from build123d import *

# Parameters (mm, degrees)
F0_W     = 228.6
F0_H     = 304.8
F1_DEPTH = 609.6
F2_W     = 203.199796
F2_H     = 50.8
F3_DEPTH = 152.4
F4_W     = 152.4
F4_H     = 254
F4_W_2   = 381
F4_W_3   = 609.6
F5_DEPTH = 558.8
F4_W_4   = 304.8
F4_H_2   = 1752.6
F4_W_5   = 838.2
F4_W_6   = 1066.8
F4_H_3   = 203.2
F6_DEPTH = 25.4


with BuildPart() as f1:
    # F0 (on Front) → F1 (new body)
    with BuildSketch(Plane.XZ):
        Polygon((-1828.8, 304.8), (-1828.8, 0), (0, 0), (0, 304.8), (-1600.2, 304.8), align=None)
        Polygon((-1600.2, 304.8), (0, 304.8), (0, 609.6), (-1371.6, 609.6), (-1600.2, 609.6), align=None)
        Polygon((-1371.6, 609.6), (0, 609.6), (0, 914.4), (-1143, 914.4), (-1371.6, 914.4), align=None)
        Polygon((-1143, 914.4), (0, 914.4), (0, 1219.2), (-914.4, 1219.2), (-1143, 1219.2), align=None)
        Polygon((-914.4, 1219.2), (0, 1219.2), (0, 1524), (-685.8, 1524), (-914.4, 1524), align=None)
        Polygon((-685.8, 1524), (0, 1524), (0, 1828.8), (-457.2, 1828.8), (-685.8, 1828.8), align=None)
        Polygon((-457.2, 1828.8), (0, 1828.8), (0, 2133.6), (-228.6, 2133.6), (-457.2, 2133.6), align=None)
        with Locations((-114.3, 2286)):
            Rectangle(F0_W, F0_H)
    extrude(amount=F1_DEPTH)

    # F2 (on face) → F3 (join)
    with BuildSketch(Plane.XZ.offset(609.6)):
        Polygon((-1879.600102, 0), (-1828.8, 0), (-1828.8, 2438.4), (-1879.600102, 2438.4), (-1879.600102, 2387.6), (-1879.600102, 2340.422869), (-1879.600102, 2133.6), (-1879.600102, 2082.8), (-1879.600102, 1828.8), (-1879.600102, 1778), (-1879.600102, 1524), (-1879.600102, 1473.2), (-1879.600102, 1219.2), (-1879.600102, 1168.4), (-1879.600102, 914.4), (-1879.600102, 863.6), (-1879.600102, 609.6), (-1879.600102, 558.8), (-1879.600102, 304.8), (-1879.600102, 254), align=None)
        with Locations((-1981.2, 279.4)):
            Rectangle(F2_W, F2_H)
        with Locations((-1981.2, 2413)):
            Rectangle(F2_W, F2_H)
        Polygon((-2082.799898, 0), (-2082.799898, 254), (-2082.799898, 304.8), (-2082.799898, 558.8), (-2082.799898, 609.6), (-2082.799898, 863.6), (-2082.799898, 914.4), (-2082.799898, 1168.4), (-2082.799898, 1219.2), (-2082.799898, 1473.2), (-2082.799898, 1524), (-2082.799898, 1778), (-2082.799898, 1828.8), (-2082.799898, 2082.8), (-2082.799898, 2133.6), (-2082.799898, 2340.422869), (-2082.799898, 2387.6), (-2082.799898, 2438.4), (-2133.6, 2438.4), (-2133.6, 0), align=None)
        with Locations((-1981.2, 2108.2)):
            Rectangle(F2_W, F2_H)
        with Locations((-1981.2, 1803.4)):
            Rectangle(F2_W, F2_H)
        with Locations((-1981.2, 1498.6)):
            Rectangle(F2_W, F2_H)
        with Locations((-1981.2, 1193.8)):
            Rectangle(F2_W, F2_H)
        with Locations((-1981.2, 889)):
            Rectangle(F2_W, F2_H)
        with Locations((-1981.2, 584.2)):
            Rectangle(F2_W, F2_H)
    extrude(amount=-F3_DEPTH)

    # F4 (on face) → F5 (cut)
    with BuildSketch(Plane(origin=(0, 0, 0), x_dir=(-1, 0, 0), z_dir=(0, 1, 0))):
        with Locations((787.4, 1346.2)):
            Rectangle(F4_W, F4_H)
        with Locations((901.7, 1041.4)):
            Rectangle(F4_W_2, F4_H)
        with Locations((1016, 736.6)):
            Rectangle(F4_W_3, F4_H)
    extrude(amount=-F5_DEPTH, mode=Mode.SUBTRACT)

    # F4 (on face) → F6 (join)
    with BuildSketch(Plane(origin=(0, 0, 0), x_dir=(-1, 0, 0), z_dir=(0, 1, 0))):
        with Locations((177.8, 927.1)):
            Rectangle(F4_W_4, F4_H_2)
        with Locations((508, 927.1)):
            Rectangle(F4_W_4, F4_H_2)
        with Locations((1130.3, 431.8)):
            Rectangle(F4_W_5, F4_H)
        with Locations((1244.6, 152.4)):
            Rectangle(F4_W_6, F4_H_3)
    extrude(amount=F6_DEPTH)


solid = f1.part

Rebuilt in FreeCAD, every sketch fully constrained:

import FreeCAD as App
import Part
import Sketcher

V = App.Vector
Q = App.Units.Quantity


def add_polygon(sketch, points):
    """Adds a closed chain of lines whose ends are joined by coincident constraints."""
    first, n = sketch.GeometryCount, len(points)
    for a, b in zip(points, points[1:] + points[:1]):
        sketch.addGeometry(Part.LineSegment(App.Vector(*a, 0), App.Vector(*b, 0)), False)
    for i in range(n):
        sketch.addConstraint(Sketcher.Constraint("Coincident", first + i, 2, first + (i + 1) % n, 1))

doc = App.newDocument("Part")
body = doc.addObject("PartDesign::Body", "Body")

# Sketch on XZ plane
sketch1 = body.newObject("Sketcher::SketchObject", "Sketch")
sketch1.AttachmentSupport = (doc.getObject("XZ_Plane"), [""])
sketch1.MapMode = "FlatFace"
add_polygon(sketch1, [(-1829, 305), (-1829, 0), (0, 0), (0, 2438), (-229, 2438), (-229, 2134), (-457, 2134), (-457, 1829), (-686, 1829), (-686, 1524), (-914, 1524), (-914, 1219), (-1143, 1219), (-1143, 914), (-1372, 914), (-1372, 610), (-1600, 610), (-1600, 305)])  # lines 0-17
sketch1.addConstraint([
    Sketcher.Constraint("Vertical", 0),
    Sketcher.Constraint("Horizontal", 1),
    Sketcher.Constraint("Vertical", 2),
    Sketcher.Constraint("Horizontal", 3),
    Sketcher.Constraint("Vertical", 4),
    Sketcher.Constraint("Horizontal", 5),
    Sketcher.Constraint("Vertical", 6),
    Sketcher.Constraint("Horizontal", 7),
    Sketcher.Constraint("Vertical", 8),
    Sketcher.Constraint("Horizontal", 9),
    Sketcher.Constraint("Vertical", 10),
    Sketcher.Constraint("Horizontal", 11),
    Sketcher.Constraint("Vertical", 12),
    Sketcher.Constraint("Horizontal", 13),
    Sketcher.Constraint("Vertical", 14),
    Sketcher.Constraint("Horizontal", 15),
    Sketcher.Constraint("Vertical", 16),
    Sketcher.Constraint("Horizontal", 17),
    Sketcher.Constraint("Coincident", 1, 2, -1, 1),
    Sketcher.Constraint("Equal", 3, 5),
    Sketcher.Constraint("Equal", 5, 7),
    Sketcher.Constraint("Equal", 7, 9),
    Sketcher.Constraint("Equal", 9, 11),
    Sketcher.Constraint("Equal", 11, 13),
    Sketcher.Constraint("Equal", 13, 15),
    Sketcher.Constraint("Equal", 15, 17),
    Sketcher.Constraint("Equal", 0, 4),
    Sketcher.Constraint("Equal", 4, 6),
    Sketcher.Constraint("Equal", 6, 8),
    Sketcher.Constraint("Equal", 8, 10),
    Sketcher.Constraint("Equal", 10, 12),
    Sketcher.Constraint("Equal", 12, 14),
    Sketcher.Constraint("Equal", 14, 16),
    Sketcher.Constraint("DistanceX", 1, 1, 1, 2, Q("72 in")),
    Sketcher.Constraint("DistanceY", 0, 2, 0, 1, Q("12 in")),
])
pad1 = body.newObject("PartDesign::Pad", "Pad")
pad1.Profile = sketch1
pad1.Length = Q("24 in")

# Sketch on XZ plane
sketch2 = body.newObject("Sketcher::SketchObject", "Sketch001")
sketch2.AttachmentSupport = (doc.getObject("XZ_Plane"), [""])
sketch2.MapMode = "FlatFace"
sketch2.AttachmentOffset = App.Placement(V(0, 0, 24 * 25.4), App.Rotation())
add_polygon(sketch2, [(-1880, 0), (-1829, 0), (-1829, 2438), (-2134, 2438), (-2134, 0), (-2083, 0), (-2083, 254), (-1880, 254)])  # lines 0-7
add_polygon(sketch2, [(-2083, 2388), (-1880, 2388), (-1880, 2134), (-2083, 2134)])  # lines 8-11
add_polygon(sketch2, [(-1880, 2083), (-1880, 1829), (-2083, 1829), (-2083, 2083)])  # lines 12-15
add_polygon(sketch2, [(-1880, 1778), (-1880, 1524), (-2083, 1524), (-2083, 1778)])  # lines 16-19
add_polygon(sketch2, [(-1880, 1473), (-1880, 1219), (-2083, 1219), (-2083, 1473)])  # lines 20-23
add_polygon(sketch2, [(-1880, 1168), (-1880, 914), (-2083, 914), (-2083, 1168)])  # lines 24-27
add_polygon(sketch2, [(-1880, 864), (-1880, 610), (-2083, 610), (-2083, 864)])  # lines 28-31
add_polygon(sketch2, [(-1880, 559), (-1880, 305), (-2083, 305), (-2083, 559)])  # lines 32-35
sketch2.addConstraint([
    Sketcher.Constraint("Horizontal", 0),
    Sketcher.Constraint("Vertical", 1),
    Sketcher.Constraint("Horizontal", 2),
    Sketcher.Constraint("Vertical", 3),
    Sketcher.Constraint("Horizontal", 4),
    Sketcher.Constraint("Vertical", 5),
    Sketcher.Constraint("Horizontal", 6),
    Sketcher.Constraint("Vertical", 7),
    Sketcher.Constraint("Horizontal", 8),
    Sketcher.Constraint("Vertical", 9),
    Sketcher.Constraint("Horizontal", 10),
    Sketcher.Constraint("Vertical", 11),
    Sketcher.Constraint("Vertical", 12),
    Sketcher.Constraint("Horizontal", 13),
    Sketcher.Constraint("Vertical", 14),
    Sketcher.Constraint("Horizontal", 15),
    Sketcher.Constraint("Vertical", 16),
    Sketcher.Constraint("Horizontal", 17),
    Sketcher.Constraint("Vertical", 18),
    Sketcher.Constraint("Horizontal", 19),
    Sketcher.Constraint("Vertical", 20),
    Sketcher.Constraint("Horizontal", 21),
    Sketcher.Constraint("Vertical", 22),
    Sketcher.Constraint("Horizontal", 23),
    Sketcher.Constraint("Vertical", 24),
    Sketcher.Constraint("Horizontal", 25),
    Sketcher.Constraint("Vertical", 26),
    Sketcher.Constraint("Horizontal", 27),
    Sketcher.Constraint("Vertical", 28),
    Sketcher.Constraint("Horizontal", 29),
    Sketcher.Constraint("Vertical", 30),
    Sketcher.Constraint("Horizontal", 31),
    Sketcher.Constraint("Vertical", 32),
    Sketcher.Constraint("Horizontal", 33),
    Sketcher.Constraint("Vertical", 34),
    Sketcher.Constraint("Horizontal", 35),
    Sketcher.Constraint("PointOnObject", 0, 2, -1),
    Sketcher.Constraint("PointOnObject", 3, 2, -1),
    Sketcher.Constraint("Vertical", 7, 2, 8, 2),
    Sketcher.Constraint("Vertical", 5, 2, 10, 2),
    Sketcher.Constraint("Vertical", 9, 2, 12, 2),
    Sketcher.Constraint("Vertical", 11, 2, 13, 2),
    Sketcher.Constraint("Vertical", 15, 2, 16, 2),
    Sketcher.Constraint("Vertical", 14, 2, 17, 2),
    Sketcher.Constraint("Vertical", 19, 2, 20, 2),
    Sketcher.Constraint("Vertical", 18, 2, 21, 2),
    Sketcher.Constraint("Vertical", 23, 2, 24, 2),
    Sketcher.Constraint("Vertical", 22, 2, 25, 2),
    Sketcher.Constraint("Vertical", 27, 2, 28, 2),
    Sketcher.Constraint("Vertical", 26, 2, 29, 2),
    Sketcher.Constraint("Vertical", 31, 2, 32, 2),
    Sketcher.Constraint("Vertical", 30, 2, 33, 2),
    Sketcher.Constraint("Equal", 0, 4),
    Sketcher.Constraint("Equal", 7, 9),
    Sketcher.Constraint("Equal", 11, 12),
    Sketcher.Constraint("Equal", 14, 16),
    Sketcher.Constraint("Equal", 18, 20),
    Sketcher.Constraint("Equal", 22, 24),
    Sketcher.Constraint("Equal", 26, 28),
    Sketcher.Constraint("Equal", 30, 32),
    Sketcher.Constraint("DistanceX", 2, 2, 2, 1, Q("12 in")),
    Sketcher.Constraint("DistanceY", 1, 1, 1, 2, Q("96 in")),
    Sketcher.Constraint("DistanceY", 5, 1, 5, 2, Q("10 in")),
    Sketcher.Constraint("DistanceX", 0, 2, -1, 1, Q("72 in")),
    Sketcher.Constraint("DistanceY", -1, 1, 8, 2, Q("94 in")),
    Sketcher.Constraint("DistanceY", -1, 1, 12, 2, Q("72 in")),
    Sketcher.Constraint("DistanceY", -1, 1, 16, 2, Q("60 in")),
    Sketcher.Constraint("DistanceY", -1, 1, 20, 2, Q("48 in")),
    Sketcher.Constraint("DistanceY", -1, 1, 24, 2, Q("36 in")),
    Sketcher.Constraint("DistanceY", -1, 1, 28, 2, Q("24 in")),
    Sketcher.Constraint("DistanceY", -1, 1, 32, 2, Q("12 in")),
    Sketcher.Constraint("DistanceX", 4, 1, 4, 2, 50.800102),
])
pad2 = body.newObject("PartDesign::Pad", "Pad001")
pad2.Profile = sketch2
pad2.Length = Q("6 in")
pad2.Reversed = True

# Sketch on XZ plane
sketch3 = body.newObject("Sketcher::SketchObject", "Sketch002")
sketch3.AttachmentSupport = (doc.getObject("XZ_Plane"), [""])
sketch3.MapMode = "FlatFace"
add_polygon(sketch3, [(-711, 1473), (-711, 1219), (-864, 1219), (-864, 1473)])  # lines 0-3
add_polygon(sketch3, [(-711, 1168), (-711, 914), (-1092, 914), (-1092, 1168)])  # lines 4-7
add_polygon(sketch3, [(-711, 864), (-711, 610), (-1321, 610), (-1321, 864)])  # lines 8-11
sketch3.addConstraint([
    Sketcher.Constraint("Vertical", 0),
    Sketcher.Constraint("Horizontal", 1),
    Sketcher.Constraint("Vertical", 2),
    Sketcher.Constraint("Horizontal", 3),
    Sketcher.Constraint("Vertical", 4),
    Sketcher.Constraint("Horizontal", 5),
    Sketcher.Constraint("Vertical", 6),
    Sketcher.Constraint("Horizontal", 7),
    Sketcher.Constraint("Vertical", 8),
    Sketcher.Constraint("Horizontal", 9),
    Sketcher.Constraint("Vertical", 10),
    Sketcher.Constraint("Horizontal", 11),
    Sketcher.Constraint("Vertical", 3, 2, 4, 2),
    Sketcher.Constraint("Vertical", 7, 2, 8, 2),
    Sketcher.Constraint("Equal", 2, 4),
    Sketcher.Constraint("Equal", 6, 8),
    Sketcher.Constraint("DistanceX", 1, 2, 1, 1, Q("6 in")),
    Sketcher.Constraint("DistanceX", 5, 2, 5, 1, Q("15 in")),
    Sketcher.Constraint("DistanceX", 9, 2, 9, 1, Q("24 in")),
    Sketcher.Constraint("DistanceY", 0, 2, 0, 1, Q("10 in")),
    Sketcher.Constraint("DistanceX", 0, 2, -1, 1, Q("28 in")),
    Sketcher.Constraint("DistanceY", -1, 1, 0, 2, Q("48 in")),
    Sketcher.Constraint("DistanceY", -1, 1, 4, 2, Q("36 in")),
    Sketcher.Constraint("DistanceY", -1, 1, 8, 2, Q("24 in")),
])
pocket1 = body.newObject("PartDesign::Pocket", "Pocket")
pocket1.Profile = sketch3
pocket1.Length = Q("22 in")
pocket1.Reversed = True

# Sketch on XZ plane
sketch4 = body.newObject("Sketcher::SketchObject", "Sketch003")
sketch4.AttachmentSupport = (doc.getObject("XZ_Plane"), [""])
sketch4.MapMode = "FlatFace"
add_polygon(sketch4, [(-25, 1803), (-25, 51), (-330, 51), (-330, 1803)])  # lines 0-3
add_polygon(sketch4, [(-356, 1803), (-356, 51), (-660, 51), (-660, 1803)])  # lines 4-7
add_polygon(sketch4, [(-711, 559), (-711, 305), (-1549, 305), (-1549, 559)])  # lines 8-11
add_polygon(sketch4, [(-711, 254), (-711, 51), (-1778, 51), (-1778, 254)])  # lines 12-15
sketch4.addConstraint([
    Sketcher.Constraint("Vertical", 0),
    Sketcher.Constraint("Horizontal", 1),
    Sketcher.Constraint("Vertical", 2),
    Sketcher.Constraint("Horizontal", 3),
    Sketcher.Constraint("Vertical", 4),
    Sketcher.Constraint("Horizontal", 5),
    Sketcher.Constraint("Vertical", 6),
    Sketcher.Constraint("Horizontal", 7),
    Sketcher.Constraint("Vertical", 8),
    Sketcher.Constraint("Horizontal", 9),
    Sketcher.Constraint("Vertical", 10),
    Sketcher.Constraint("Horizontal", 11),
    Sketcher.Constraint("Vertical", 12),
    Sketcher.Constraint("Horizontal", 13),
    Sketcher.Constraint("Vertical", 14),
    Sketcher.Constraint("Horizontal", 15),
    Sketcher.Constraint("Horizontal", 1, 2, 4, 2),
    Sketcher.Constraint("Horizontal", 3, 2, 6, 2),
    Sketcher.Constraint("Horizontal", 5, 2, 12, 2),
    Sketcher.Constraint("Vertical", 11, 2, 12, 2),
    Sketcher.Constraint("Equal", 3, 5),
    Sketcher.Constraint("DistanceX", 1, 2, 1, 1, Q("12 in")),
    Sketcher.Constraint("DistanceX", 9, 2, 9, 1, Q("33 in")),
    Sketcher.Constraint("DistanceX", 13, 2, 13, 1, Q("42 in")),
    Sketcher.Constraint("DistanceY", 0, 2, 0, 1, Q("69 in")),
    Sketcher.Constraint("DistanceY", 8, 2, 8, 1, Q("10 in")),
    Sketcher.Constraint("DistanceY", 12, 2, 12, 1, Q("8 in")),
    Sketcher.Constraint("DistanceX", 0, 2, -1, 1, Q("1 in")),
    Sketcher.Constraint("DistanceY", -1, 1, 0, 2, Q("2 in")),
    Sketcher.Constraint("DistanceX", 4, 2, -1, 1, Q("14 in")),
    Sketcher.Constraint("DistanceX", 8, 2, -1, 1, Q("28 in")),
    Sketcher.Constraint("DistanceY", -1, 1, 8, 2, Q("12 in")),
])
pad3 = body.newObject("PartDesign::Pad", "Pad002")
pad3.Profile = sketch4
pad3.Length = Q("1 in")
pad3.Reversed = True

doc.recompute()
